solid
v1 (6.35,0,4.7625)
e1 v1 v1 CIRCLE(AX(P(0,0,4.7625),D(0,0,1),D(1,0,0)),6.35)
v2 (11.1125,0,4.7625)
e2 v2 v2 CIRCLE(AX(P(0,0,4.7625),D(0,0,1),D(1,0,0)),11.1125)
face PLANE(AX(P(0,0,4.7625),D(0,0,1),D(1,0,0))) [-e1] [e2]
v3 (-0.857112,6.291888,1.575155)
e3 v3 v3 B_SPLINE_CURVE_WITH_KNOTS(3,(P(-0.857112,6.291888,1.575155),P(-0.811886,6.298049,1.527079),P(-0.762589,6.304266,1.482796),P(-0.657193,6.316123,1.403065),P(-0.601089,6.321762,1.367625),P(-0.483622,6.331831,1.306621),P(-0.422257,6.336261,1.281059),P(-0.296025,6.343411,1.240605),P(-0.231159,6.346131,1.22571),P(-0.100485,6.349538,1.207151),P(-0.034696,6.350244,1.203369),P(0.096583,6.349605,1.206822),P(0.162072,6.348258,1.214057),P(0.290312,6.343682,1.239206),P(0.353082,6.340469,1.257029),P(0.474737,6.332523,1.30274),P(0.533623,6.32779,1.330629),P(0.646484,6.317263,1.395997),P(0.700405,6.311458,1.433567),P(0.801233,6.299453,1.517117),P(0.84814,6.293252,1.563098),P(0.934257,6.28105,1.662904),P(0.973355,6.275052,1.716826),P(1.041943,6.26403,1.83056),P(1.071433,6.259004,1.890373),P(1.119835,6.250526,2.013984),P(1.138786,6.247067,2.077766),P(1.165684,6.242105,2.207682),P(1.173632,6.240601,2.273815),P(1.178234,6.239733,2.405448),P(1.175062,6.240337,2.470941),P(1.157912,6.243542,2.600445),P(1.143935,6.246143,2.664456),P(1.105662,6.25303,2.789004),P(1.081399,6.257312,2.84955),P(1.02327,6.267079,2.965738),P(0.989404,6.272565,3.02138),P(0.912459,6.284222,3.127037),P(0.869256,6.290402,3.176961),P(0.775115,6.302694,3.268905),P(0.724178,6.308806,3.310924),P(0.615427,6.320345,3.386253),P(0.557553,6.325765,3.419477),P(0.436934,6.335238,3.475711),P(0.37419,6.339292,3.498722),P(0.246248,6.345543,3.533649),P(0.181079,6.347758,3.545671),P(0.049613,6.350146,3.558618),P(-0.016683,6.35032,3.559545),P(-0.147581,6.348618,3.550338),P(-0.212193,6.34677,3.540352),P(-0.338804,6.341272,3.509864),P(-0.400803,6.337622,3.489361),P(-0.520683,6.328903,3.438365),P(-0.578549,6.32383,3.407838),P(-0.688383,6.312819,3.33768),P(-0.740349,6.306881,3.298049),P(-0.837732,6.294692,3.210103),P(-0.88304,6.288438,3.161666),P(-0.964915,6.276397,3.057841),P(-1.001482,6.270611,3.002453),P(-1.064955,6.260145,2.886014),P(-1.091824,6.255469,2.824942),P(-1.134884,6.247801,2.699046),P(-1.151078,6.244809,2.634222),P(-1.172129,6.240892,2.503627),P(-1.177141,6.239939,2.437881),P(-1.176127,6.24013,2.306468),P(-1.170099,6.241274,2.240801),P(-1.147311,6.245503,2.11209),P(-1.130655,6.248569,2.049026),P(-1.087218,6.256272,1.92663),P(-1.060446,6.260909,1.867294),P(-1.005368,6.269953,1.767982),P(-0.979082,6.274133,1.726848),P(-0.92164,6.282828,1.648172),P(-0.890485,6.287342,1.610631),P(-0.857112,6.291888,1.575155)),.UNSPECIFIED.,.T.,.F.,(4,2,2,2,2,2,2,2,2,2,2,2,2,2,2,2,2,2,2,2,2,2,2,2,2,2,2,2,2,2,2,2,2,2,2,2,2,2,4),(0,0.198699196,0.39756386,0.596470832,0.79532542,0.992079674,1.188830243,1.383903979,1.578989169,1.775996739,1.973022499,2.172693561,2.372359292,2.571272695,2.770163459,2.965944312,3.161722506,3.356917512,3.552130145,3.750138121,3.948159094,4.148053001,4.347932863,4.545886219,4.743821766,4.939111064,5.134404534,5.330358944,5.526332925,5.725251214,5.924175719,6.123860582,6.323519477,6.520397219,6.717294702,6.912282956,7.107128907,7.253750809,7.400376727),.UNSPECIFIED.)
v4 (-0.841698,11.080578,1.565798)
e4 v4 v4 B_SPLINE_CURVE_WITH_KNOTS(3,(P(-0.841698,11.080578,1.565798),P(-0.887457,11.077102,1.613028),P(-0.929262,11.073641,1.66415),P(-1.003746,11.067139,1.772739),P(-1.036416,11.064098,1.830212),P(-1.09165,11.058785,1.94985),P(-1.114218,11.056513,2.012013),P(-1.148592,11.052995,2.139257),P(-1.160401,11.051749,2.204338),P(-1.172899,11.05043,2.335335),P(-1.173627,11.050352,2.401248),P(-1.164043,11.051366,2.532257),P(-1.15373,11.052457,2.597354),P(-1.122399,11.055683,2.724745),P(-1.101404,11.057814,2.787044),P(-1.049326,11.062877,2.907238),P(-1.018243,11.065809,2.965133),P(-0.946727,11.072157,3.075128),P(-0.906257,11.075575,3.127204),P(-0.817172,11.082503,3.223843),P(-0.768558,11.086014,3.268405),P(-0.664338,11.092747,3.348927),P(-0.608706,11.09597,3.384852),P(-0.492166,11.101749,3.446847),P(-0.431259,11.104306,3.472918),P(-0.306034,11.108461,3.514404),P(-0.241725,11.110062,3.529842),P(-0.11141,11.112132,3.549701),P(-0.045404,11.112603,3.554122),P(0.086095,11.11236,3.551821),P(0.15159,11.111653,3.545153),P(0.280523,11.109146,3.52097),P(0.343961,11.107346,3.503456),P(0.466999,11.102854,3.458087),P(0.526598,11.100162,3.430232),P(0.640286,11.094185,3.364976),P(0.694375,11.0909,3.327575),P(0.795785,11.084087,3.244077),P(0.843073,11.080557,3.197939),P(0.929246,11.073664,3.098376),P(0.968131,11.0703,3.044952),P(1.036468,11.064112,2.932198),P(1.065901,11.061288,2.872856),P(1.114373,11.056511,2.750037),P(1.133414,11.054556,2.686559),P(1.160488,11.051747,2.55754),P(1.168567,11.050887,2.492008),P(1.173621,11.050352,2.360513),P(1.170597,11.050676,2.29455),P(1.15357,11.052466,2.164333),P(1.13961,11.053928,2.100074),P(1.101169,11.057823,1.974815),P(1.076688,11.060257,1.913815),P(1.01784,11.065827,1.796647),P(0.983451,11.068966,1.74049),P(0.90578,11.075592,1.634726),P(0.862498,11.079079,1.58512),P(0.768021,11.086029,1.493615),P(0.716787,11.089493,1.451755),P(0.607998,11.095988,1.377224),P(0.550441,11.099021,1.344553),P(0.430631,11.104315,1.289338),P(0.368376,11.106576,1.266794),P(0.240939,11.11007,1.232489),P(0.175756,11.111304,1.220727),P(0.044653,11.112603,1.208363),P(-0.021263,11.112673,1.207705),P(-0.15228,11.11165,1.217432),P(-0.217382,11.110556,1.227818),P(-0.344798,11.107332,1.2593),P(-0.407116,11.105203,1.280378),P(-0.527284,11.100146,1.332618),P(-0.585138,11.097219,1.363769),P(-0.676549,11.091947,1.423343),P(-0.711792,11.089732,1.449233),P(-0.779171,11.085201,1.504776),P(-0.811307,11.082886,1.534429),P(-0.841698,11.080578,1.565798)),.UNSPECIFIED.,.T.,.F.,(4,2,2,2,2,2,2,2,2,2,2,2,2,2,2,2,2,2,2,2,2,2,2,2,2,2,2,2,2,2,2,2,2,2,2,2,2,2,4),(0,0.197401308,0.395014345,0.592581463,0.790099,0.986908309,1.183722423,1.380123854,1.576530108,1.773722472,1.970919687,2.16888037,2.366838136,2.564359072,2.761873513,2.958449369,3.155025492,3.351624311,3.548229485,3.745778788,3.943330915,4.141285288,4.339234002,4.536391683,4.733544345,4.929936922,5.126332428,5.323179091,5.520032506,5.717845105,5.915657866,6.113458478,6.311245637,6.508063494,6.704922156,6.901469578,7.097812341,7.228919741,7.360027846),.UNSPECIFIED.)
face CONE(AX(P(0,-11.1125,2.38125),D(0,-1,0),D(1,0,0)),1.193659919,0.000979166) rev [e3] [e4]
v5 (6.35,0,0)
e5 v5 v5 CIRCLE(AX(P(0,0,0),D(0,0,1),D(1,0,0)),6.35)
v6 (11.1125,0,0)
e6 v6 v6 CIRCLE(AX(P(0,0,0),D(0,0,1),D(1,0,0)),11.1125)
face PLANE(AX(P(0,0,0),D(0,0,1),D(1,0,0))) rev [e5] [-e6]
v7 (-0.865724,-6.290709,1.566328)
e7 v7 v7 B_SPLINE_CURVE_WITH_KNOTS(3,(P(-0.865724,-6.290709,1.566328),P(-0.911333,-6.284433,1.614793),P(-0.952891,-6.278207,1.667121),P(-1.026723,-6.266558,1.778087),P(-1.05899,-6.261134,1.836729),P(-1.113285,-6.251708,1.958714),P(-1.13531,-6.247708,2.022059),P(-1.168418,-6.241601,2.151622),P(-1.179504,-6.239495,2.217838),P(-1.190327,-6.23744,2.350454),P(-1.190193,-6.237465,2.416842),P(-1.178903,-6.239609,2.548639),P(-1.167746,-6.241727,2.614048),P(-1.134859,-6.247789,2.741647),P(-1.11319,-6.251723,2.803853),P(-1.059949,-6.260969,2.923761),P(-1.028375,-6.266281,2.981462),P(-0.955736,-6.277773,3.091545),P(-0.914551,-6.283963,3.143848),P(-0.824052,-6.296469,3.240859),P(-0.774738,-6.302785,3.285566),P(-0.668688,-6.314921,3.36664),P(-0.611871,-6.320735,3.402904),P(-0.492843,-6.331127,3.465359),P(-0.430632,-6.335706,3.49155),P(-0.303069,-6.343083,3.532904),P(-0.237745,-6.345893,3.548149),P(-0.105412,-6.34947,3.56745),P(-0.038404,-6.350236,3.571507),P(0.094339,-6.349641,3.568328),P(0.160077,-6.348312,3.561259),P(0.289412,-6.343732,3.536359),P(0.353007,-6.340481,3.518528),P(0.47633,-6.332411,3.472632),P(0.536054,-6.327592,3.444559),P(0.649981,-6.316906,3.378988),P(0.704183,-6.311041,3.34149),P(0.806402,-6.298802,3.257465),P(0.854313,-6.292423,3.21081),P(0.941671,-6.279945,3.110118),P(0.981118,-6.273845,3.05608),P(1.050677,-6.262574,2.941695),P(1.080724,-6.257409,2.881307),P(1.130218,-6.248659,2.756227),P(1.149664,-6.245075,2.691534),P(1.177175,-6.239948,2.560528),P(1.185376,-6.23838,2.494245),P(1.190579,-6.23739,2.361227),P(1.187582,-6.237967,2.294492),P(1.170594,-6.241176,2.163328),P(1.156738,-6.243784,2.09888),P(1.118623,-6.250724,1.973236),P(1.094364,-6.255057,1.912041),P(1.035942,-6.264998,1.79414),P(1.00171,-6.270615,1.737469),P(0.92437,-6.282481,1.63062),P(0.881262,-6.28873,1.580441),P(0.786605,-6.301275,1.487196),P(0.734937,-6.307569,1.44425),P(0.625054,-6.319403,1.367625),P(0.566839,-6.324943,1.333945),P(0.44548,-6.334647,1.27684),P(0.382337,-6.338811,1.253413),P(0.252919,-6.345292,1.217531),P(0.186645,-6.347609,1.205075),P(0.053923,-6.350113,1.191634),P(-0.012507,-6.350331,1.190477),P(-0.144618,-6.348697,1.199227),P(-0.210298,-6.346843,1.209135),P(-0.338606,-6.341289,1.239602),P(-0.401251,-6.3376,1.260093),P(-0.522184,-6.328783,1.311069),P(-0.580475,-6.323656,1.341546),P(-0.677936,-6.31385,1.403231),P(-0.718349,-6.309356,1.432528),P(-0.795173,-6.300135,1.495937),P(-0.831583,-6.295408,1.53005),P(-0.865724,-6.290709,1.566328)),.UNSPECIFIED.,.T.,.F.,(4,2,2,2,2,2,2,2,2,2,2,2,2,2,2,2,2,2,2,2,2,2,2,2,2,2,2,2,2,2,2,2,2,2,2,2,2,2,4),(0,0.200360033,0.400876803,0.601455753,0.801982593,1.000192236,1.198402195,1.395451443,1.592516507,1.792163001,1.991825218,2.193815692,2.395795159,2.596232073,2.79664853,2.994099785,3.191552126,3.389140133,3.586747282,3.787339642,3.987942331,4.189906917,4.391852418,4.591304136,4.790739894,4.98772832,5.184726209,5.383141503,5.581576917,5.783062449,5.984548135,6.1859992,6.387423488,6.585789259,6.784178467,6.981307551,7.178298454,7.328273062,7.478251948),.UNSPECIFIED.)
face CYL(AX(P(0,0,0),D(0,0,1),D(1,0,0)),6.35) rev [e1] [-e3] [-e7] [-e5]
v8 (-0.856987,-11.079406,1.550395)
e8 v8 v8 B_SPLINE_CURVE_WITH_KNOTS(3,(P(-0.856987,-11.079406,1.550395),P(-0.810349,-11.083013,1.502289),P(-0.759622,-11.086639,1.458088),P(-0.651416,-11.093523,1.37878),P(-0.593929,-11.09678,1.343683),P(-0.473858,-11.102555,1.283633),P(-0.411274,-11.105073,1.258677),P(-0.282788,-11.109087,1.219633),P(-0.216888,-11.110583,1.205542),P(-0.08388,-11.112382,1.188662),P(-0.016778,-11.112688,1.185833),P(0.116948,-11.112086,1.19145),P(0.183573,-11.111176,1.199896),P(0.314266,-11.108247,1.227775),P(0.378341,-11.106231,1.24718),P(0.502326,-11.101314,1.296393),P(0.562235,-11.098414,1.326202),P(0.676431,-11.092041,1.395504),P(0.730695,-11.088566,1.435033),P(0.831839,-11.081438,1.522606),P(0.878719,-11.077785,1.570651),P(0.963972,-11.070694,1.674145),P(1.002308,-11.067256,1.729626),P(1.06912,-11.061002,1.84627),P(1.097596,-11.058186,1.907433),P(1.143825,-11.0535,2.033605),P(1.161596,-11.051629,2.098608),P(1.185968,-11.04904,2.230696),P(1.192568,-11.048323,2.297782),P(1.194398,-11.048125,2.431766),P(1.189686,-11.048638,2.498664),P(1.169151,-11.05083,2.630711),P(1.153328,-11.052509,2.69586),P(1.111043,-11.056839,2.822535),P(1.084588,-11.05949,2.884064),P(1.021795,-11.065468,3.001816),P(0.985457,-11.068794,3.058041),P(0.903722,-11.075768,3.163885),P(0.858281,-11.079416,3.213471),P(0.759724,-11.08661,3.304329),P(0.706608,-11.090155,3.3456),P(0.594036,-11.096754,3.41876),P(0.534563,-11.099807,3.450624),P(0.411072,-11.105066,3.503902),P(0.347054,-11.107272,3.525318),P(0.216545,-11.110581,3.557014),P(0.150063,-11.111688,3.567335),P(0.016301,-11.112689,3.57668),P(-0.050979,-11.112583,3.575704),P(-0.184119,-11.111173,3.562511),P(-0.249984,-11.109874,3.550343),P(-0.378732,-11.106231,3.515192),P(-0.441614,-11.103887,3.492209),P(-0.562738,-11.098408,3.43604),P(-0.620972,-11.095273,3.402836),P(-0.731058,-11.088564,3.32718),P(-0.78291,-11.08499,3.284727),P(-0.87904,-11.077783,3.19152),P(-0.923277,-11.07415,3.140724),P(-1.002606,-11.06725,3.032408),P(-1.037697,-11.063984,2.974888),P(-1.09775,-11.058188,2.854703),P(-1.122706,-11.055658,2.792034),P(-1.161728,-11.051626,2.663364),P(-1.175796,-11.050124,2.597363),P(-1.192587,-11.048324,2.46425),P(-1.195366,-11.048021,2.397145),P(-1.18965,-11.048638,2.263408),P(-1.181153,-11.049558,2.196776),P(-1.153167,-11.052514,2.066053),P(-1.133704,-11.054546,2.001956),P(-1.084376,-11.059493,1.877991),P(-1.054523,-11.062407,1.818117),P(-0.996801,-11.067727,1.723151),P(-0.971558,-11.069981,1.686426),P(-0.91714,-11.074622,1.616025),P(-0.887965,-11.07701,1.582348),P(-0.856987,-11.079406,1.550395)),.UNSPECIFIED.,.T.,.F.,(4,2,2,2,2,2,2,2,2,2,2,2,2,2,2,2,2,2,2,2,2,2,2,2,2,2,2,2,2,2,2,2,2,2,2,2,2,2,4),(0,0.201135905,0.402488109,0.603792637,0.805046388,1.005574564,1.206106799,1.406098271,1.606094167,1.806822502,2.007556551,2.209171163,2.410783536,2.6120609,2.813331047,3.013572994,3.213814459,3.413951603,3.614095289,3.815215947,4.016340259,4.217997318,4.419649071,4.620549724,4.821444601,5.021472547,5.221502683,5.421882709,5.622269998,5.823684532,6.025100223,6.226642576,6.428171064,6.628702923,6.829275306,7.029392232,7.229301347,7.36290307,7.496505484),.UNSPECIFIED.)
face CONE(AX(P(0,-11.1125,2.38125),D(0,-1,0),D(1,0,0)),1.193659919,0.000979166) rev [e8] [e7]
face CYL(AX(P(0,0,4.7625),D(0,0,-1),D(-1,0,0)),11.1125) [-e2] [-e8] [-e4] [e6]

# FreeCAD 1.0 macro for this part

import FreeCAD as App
import Part
import Sketcher
from FreeCAD import Vector
Q = App.Units.Quantity

doc = App.newDocument("Part")
body = doc.addObject("PartDesign::Body", "Body")

# Sketch on XY plane
sketch1 = body.newObject("Sketcher::SketchObject", "Sketch")
sketch1.AttachmentSupport = (doc.getObject("XY_Plane"), [""])
sketch1.MapMode = "FlatFace"
sketch1.addGeometry(Part.Circle(Vector(0, 0, 0), Vector(0, 0, 1), 11), False)
sketch1.addConstraint([
    Sketcher.Constraint("Coincident", 0, 3, -1, 1),
    Sketcher.Constraint("Diameter", 0, Q("0.875 in")),
])
pad1 = body.newObject("PartDesign::Pad", "Pad")
pad1.Profile = sketch1
pad1.Length = Q("0.1875 in")

# Sketch on XY plane
sketch2 = body.newObject("Sketcher::SketchObject", "Sketch001")
sketch2.AttachmentSupport = (doc.getObject("XY_Plane"), [""])
sketch2.MapMode = "FlatFace"
sketch2.AttachmentOffset = App.Placement(Vector(0, 0, 0.1875 * 25.4), App.Rotation())
sketch2.addGeometry(Part.Circle(Vector(0, 0, 0), Vector(0, 0, 1), 6), False)
sketch2.addConstraint([
    Sketcher.Constraint("Coincident", 0, 3, -1, 1),
    Sketcher.Constraint("Diameter", 0, Q("0.5 in")),
])
pocket1 = body.newObject("PartDesign::Pocket", "Pocket")
pocket1.Profile = sketch2
pocket1.Type = "ThroughAll"

# Sketch on XY plane
sketch3 = body.newObject("Sketcher::SketchObject", "Sketch002")
sketch3.AttachmentSupport = (doc.getObject("XY_Plane"), [""])
sketch3.MapMode = "FlatFace"
sketch3.AttachmentOffset = App.Placement(Vector(0, 0, 0.09375 * 25.4), App.Rotation())
sketch3.addGeometry([
    Part.LineSegment(Vector(1.2, -11.1, 0), Vector(1.2, 11.1, 0)),
    Part.LineSegment(Vector(1.2, 11.1, 0), Vector(0, 11.1, 0)),
    Part.LineSegment(Vector(0, 11.1, 0), Vector(0, -11.1, 0)),
    Part.LineSegment(Vector(0, -11.1, 0), Vector(1.2, -11.1, 0)),
], False)
sketch3.addConstraint([
    Sketcher.Constraint("Coincident", 0, 2, 1, 1),
    Sketcher.Constraint("Coincident", 1, 2, 2, 1),
    Sketcher.Constraint("Coincident", 2, 2, 3, 1),
    Sketcher.Constraint("Coincident", 3, 2, 0, 1),
    Sketcher.Constraint("Horizontal", 1),
    Sketcher.Constraint("Vertical", 2),
    Sketcher.Constraint("Horizontal", 3),
    Sketcher.Constraint("Symmetric", 1, 2, 2, 2, -1, 1),
    Sketcher.Constraint("DistanceY", 2, 2, 2, 1, Q("0.875 in")),
    Sketcher.Constraint("DistanceX", 3, 1, 3, 2, 1.19366),
    Sketcher.Constraint("DistanceX", 1, 2, 1, 1, 1.171898),
])
groove = body.newObject("PartDesign::Groove", "Groove")
groove.Profile = sketch3
groove.ReferenceAxis = (sketch3, ["V_Axis"])
groove.Angle = 360

doc.recompute()
